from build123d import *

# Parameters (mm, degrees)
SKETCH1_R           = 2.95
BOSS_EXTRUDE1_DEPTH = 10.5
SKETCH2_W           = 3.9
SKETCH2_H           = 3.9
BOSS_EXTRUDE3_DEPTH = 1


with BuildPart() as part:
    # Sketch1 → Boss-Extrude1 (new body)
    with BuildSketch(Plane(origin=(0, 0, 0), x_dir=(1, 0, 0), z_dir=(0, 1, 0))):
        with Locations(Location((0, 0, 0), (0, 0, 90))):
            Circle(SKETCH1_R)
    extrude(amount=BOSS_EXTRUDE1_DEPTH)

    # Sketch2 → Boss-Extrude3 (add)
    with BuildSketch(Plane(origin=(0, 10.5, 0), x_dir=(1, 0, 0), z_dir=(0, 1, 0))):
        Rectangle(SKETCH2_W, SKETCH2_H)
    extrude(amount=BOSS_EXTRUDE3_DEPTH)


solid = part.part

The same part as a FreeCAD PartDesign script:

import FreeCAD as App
import Part
import Sketcher

V = App.Vector
Q = App.Units.Quantity

doc = App.newDocument("Part")
params = doc.addObject("Spreadsheet::Sheet", "Params")
for row, (alias, value) in enumerate([
    ("sketch1_diameter", "5.9 mm"),
    ("pad1_length", "10.5 mm"),
    ("sketch2_width", "3.9 mm"),
    ("pad2_length", "1 mm"),
], start=1):
    params.set(f"A{row}", alias)
    params.set(f"B{row}", "=" + value)
    params.setAlias(f"B{row}", alias)

body = doc.addObject("PartDesign::Body", "Body")

# Sketch on XZ plane
sketch1 = doc.addObject("Sketcher::SketchObject", "Sketch")
body.addObject(sketch1)
sketch1.AttachmentSupport = (doc.XZ_Plane, [""])
sketch1.MapMode = "FlatFace"
sketch1.addGeometry(Part.Circle(V(0, 0, 0), V(0, 0, 1), 3), False)
sketch1.addConstraint([
    Sketcher.Constraint("Coincident", 0, 3, -1, 1),
    Sketcher.Constraint("Diameter", 0, Q("5.9 mm")),
])
sketch1.setExpression("Constraints[1]", "Params.sketch1_diameter")
pad1 = doc.addObject("PartDesign::Pad", "Pad")
body.addObject(pad1)
pad1.Profile = sketch1
pad1.setExpression("Length", "Params.pad1_length")
pad1.Reversed = True

# Sketch on XZ plane
sketch2 = doc.addObject("Sketcher::SketchObject", "Sketch001")
body.addObject(sketch2)
sketch2.AttachmentSupport = (doc.XZ_Plane, [""])
sketch2.MapMode = "FlatFace"
sketch2.AttachmentOffset = App.Placement(V(0, 0, -10.5), App.Rotation())
sketch2.addGeometry([
    Part.LineSegment(V(-1.9, -1.9, 0), V(-1.9, 1.9, 0)),
    Part.LineSegment(V(-1.9, 1.9, 0), V(1.9, 1.9, 0)),
    Part.LineSegment(V(1.9, 1.9, 0), V(1.9, -1.9, 0)),
    Part.LineSegment(V(1.9, -1.9, 0), V(-1.9, -1.9, 0)),
], False)
sketch2.addConstraint([
    Sketcher.Constraint("Coincident", 0, 2, 1, 1),
    Sketcher.Constraint("Coincident", 1, 2, 2, 1),
    Sketcher.Constraint("Coincident", 2, 2, 3, 1),
    Sketcher.Constraint("Coincident", 3, 2, 0, 1),
    Sketcher.Constraint("Vertical", 0),
    Sketcher.Constraint("Horizontal", 1),
    Sketcher.Constraint("Vertical", 2),
    Sketcher.Constraint("Horizontal", 3),
    Sketcher.Constraint("Symmetric", 0, 2, 2, 2, -1, 1),
    Sketcher.Constraint("Equal", 3, 0),
    Sketcher.Constraint("DistanceX", 1, 1, 1, 2, Q("3.9 mm")),
])
sketch2.setExpression("Constraints[10]", "Params.sketch2_width")
pad2 = doc.addObject("PartDesign::Pad", "Pad001")
body.addObject(pad2)
pad2.Profile = sketch2
pad2.setExpression("Length", "Params.pad2_length")
pad2.Reversed = True

doc.recompute()
